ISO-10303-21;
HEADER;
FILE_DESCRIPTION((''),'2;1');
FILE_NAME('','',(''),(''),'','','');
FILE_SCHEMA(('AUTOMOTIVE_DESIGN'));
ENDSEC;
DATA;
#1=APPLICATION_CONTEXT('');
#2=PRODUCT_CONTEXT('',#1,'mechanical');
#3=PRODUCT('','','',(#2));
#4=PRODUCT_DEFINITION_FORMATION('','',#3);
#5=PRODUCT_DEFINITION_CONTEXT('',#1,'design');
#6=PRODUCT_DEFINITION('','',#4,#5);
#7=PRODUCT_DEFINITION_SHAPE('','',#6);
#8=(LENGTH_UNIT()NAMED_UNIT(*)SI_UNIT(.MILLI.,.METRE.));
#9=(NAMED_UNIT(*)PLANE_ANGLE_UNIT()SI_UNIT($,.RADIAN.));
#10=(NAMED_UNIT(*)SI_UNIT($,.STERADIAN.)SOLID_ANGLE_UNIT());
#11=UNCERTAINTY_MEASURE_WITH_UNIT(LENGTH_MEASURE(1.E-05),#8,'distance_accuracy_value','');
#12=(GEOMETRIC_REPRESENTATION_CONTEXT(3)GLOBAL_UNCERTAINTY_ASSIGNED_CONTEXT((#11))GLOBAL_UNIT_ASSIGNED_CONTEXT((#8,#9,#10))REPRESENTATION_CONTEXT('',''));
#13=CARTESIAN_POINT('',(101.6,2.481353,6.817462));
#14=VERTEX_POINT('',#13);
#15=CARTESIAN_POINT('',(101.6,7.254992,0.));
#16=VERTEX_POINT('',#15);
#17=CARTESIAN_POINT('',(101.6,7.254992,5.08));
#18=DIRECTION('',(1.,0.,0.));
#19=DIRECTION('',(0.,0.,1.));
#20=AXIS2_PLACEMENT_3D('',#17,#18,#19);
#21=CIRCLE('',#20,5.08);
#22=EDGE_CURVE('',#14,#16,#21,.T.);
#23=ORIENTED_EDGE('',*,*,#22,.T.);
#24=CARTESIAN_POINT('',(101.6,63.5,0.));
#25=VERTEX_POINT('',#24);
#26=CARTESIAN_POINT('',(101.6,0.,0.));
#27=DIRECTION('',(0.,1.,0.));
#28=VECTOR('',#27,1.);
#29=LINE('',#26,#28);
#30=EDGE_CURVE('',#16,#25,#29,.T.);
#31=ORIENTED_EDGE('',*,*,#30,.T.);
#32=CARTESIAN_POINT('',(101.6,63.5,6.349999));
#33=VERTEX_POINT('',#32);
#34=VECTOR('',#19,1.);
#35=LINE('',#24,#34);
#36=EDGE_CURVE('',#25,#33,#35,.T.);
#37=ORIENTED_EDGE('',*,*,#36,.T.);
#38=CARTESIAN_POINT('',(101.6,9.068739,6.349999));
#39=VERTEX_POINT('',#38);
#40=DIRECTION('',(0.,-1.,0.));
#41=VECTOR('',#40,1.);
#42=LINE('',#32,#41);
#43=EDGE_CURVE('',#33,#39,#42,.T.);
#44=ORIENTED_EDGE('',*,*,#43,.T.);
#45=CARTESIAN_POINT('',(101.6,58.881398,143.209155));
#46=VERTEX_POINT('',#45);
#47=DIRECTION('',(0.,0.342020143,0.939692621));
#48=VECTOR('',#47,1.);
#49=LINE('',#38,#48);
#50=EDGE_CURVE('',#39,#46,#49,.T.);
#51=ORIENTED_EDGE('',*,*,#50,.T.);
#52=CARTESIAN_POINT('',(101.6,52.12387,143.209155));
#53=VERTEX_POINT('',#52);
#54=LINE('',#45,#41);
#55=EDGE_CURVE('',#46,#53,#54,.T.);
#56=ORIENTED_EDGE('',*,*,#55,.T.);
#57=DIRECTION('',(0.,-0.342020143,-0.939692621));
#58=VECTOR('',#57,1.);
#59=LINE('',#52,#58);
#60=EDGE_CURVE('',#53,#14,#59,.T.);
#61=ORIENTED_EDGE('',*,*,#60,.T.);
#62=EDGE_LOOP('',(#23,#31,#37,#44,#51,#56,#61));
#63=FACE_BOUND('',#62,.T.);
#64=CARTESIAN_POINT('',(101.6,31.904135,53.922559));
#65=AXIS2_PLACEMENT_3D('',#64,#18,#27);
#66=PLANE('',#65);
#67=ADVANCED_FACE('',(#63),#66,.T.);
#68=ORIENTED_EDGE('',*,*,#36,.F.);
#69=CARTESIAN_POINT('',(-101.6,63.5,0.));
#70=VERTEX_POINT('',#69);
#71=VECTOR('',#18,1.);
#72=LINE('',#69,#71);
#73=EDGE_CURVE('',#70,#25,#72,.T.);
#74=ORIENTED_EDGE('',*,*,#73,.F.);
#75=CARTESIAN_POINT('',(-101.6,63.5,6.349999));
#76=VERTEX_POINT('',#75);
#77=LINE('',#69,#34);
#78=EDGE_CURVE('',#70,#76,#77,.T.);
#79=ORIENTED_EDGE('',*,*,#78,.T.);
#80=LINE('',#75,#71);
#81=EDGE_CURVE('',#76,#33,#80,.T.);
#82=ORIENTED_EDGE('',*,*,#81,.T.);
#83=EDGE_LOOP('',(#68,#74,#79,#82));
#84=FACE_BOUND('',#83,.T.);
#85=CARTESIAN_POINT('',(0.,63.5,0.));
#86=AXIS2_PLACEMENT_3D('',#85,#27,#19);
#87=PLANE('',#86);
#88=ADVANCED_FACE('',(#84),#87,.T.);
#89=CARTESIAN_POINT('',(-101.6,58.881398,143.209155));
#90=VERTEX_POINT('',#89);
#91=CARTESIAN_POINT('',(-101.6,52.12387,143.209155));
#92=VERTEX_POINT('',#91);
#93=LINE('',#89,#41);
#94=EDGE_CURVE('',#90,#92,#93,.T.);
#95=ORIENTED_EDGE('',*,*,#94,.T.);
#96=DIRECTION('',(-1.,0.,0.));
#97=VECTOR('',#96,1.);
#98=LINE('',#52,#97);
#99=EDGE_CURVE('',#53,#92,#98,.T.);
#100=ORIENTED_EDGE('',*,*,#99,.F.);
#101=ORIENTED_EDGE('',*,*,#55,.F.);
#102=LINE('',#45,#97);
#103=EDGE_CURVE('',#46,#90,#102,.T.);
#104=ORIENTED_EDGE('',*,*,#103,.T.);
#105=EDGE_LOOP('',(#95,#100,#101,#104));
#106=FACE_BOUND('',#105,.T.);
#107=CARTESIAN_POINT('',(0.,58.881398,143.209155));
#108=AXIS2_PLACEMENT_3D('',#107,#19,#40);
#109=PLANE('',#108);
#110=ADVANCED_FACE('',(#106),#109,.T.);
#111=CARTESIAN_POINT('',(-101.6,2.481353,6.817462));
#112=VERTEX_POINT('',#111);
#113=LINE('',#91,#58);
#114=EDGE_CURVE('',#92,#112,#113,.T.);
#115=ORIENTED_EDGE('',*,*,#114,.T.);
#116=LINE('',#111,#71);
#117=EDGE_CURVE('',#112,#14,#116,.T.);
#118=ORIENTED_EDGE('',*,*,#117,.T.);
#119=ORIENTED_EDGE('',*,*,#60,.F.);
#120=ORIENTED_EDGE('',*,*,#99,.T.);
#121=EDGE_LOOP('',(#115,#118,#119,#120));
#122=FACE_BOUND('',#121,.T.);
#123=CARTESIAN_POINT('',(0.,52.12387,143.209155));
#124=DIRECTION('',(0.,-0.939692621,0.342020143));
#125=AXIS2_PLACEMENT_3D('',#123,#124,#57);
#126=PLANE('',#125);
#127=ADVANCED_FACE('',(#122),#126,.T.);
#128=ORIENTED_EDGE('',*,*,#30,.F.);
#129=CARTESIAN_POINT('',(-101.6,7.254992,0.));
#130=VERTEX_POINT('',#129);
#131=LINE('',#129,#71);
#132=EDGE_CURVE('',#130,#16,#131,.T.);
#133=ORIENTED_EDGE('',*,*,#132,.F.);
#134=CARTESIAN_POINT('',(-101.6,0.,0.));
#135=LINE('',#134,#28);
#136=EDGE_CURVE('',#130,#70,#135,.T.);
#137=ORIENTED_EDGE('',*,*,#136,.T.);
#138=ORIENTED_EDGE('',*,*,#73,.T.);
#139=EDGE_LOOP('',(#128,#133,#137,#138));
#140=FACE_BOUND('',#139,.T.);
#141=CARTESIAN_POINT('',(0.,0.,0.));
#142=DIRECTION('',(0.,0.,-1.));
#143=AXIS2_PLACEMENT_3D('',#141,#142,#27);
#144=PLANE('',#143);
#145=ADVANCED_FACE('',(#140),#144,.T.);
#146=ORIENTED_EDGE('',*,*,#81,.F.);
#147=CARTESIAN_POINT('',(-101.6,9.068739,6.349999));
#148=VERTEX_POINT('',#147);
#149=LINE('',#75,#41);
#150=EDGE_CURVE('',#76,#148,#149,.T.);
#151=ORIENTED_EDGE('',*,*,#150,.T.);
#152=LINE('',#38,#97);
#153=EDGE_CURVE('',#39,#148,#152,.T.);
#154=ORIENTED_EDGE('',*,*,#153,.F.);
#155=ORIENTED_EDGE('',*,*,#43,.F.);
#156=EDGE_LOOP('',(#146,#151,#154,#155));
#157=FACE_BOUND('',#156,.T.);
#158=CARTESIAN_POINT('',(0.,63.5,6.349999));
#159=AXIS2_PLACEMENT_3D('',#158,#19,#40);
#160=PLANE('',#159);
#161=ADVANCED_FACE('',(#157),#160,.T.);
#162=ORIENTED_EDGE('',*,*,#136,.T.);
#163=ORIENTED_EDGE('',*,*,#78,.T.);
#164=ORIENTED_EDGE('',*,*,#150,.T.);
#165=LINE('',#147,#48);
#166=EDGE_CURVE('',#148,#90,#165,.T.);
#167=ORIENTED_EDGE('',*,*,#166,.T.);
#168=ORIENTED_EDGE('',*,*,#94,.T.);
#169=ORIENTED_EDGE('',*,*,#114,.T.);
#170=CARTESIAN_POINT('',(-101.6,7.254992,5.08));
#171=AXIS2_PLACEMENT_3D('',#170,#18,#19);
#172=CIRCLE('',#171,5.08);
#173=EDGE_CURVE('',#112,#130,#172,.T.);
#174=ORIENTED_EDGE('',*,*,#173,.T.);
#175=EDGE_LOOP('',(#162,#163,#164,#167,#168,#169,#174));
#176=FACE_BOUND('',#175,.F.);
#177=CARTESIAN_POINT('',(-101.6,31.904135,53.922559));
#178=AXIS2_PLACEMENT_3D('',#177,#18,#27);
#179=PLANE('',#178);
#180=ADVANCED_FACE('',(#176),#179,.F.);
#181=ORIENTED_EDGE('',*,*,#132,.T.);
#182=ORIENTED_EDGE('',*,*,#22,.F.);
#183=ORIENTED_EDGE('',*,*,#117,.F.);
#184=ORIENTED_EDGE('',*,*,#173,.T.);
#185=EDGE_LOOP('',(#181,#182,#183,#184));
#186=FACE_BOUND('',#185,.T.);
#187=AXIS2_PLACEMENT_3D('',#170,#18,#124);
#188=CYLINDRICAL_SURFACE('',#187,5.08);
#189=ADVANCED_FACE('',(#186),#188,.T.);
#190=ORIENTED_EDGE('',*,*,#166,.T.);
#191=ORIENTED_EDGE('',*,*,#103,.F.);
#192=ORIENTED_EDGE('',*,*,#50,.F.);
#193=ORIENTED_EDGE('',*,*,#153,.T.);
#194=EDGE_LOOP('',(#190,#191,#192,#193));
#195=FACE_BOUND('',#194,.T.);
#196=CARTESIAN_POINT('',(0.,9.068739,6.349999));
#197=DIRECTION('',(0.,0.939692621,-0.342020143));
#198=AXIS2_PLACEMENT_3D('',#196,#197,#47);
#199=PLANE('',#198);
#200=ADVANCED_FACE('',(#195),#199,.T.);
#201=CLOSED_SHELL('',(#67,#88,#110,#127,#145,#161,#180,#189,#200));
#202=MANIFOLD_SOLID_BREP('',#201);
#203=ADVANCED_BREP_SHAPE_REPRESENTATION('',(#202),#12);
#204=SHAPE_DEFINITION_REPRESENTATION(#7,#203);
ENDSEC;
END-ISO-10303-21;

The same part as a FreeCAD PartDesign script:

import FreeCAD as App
import Part
import Sketcher
from FreeCAD import Vector
Q = App.Units.Quantity


def edges_at(feature, points):
    """Names of the edges that pass closest to the given points."""
    edges = feature.Shape.Edges
    near = lambda p: min(range(len(edges)), key=lambda i: edges[i].distToShape(Part.Vertex(*p))[0])
    return sorted({f"Edge{near(p) + 1}" for p in points})

doc = App.newDocument("Part")
body = doc.addObject("PartDesign::Body", "Body")

sketch1 = body.newObject("Sketcher::SketchObject", "Sketch")
sketch1.AttachmentSupport = (doc.getObject("YZ_Plane"), [""])
sketch1.MapMode = "FlatFace"
sketch1.addGeometry([
    Part.LineSegment(Vector(52.12387, 143.209155, 0), Vector(0, 0, 0)),
    Part.LineSegment(Vector(0, 0, 0), Vector(63.5, 0, 0)),
    Part.LineSegment(Vector(63.5, 0, 0), Vector(63.5, 6.349999, 0)),
    Part.LineSegment(Vector(63.5, 6.349999, 0), Vector(9.068739, 6.349999, 0)),
    Part.LineSegment(Vector(9.068739, 6.349999, 0), Vector(58.881398, 143.209155, 0)),
    Part.LineSegment(Vector(58.881398, 143.209155, 0), Vector(52.12387, 143.209155, 0)),
], False)
sketch1.addConstraint([
    Sketcher.Constraint("Coincident", 0, 2, 1, 1),
    Sketcher.Constraint("Coincident", 1, 2, 2, 1),
    Sketcher.Constraint("Coincident", 2, 2, 3, 1),
    Sketcher.Constraint("Coincident", 3, 2, 4, 1),
    Sketcher.Constraint("Coincident", 4, 2, 5, 1),
    Sketcher.Constraint("Coincident", 5, 2, 0, 1),
    Sketcher.Constraint("Horizontal", 1),
    Sketcher.Constraint("Vertical", 2),
    Sketcher.Constraint("Horizontal", 3),
    Sketcher.Constraint("Horizontal", 5),
    Sketcher.Constraint("Coincident", 0, 2, -1, 1),
    Sketcher.Constraint("Parallel", 0, 4),
    Sketcher.Constraint("Distance", 0, Q("6 in")),
    Sketcher.Constraint("DistanceX", 1, 1, 1, 2, Q("2.5 in")),
    Sketcher.Constraint("Angle", 0, Q("-110 deg")),
    Sketcher.Constraint("DistanceY", 2, 1, 2, 2, Q("0.25 in")),
    Sketcher.Constraint("DistanceX", 3, 2, 3, 1, 54.431261),
])
pad1 = body.newObject("PartDesign::Pad", "Pad")
pad1.Profile = sketch1
pad1.Length = Q("8 in")
pad1.Midplane = True
doc.recompute()

fillet = body.newObject("PartDesign::Fillet", "Fillet")
fillet.Base = (pad1, edges_at(pad1, [(0, 0, 0)]))
fillet.Radius = Q("0.2 in")

doc.recompute()
